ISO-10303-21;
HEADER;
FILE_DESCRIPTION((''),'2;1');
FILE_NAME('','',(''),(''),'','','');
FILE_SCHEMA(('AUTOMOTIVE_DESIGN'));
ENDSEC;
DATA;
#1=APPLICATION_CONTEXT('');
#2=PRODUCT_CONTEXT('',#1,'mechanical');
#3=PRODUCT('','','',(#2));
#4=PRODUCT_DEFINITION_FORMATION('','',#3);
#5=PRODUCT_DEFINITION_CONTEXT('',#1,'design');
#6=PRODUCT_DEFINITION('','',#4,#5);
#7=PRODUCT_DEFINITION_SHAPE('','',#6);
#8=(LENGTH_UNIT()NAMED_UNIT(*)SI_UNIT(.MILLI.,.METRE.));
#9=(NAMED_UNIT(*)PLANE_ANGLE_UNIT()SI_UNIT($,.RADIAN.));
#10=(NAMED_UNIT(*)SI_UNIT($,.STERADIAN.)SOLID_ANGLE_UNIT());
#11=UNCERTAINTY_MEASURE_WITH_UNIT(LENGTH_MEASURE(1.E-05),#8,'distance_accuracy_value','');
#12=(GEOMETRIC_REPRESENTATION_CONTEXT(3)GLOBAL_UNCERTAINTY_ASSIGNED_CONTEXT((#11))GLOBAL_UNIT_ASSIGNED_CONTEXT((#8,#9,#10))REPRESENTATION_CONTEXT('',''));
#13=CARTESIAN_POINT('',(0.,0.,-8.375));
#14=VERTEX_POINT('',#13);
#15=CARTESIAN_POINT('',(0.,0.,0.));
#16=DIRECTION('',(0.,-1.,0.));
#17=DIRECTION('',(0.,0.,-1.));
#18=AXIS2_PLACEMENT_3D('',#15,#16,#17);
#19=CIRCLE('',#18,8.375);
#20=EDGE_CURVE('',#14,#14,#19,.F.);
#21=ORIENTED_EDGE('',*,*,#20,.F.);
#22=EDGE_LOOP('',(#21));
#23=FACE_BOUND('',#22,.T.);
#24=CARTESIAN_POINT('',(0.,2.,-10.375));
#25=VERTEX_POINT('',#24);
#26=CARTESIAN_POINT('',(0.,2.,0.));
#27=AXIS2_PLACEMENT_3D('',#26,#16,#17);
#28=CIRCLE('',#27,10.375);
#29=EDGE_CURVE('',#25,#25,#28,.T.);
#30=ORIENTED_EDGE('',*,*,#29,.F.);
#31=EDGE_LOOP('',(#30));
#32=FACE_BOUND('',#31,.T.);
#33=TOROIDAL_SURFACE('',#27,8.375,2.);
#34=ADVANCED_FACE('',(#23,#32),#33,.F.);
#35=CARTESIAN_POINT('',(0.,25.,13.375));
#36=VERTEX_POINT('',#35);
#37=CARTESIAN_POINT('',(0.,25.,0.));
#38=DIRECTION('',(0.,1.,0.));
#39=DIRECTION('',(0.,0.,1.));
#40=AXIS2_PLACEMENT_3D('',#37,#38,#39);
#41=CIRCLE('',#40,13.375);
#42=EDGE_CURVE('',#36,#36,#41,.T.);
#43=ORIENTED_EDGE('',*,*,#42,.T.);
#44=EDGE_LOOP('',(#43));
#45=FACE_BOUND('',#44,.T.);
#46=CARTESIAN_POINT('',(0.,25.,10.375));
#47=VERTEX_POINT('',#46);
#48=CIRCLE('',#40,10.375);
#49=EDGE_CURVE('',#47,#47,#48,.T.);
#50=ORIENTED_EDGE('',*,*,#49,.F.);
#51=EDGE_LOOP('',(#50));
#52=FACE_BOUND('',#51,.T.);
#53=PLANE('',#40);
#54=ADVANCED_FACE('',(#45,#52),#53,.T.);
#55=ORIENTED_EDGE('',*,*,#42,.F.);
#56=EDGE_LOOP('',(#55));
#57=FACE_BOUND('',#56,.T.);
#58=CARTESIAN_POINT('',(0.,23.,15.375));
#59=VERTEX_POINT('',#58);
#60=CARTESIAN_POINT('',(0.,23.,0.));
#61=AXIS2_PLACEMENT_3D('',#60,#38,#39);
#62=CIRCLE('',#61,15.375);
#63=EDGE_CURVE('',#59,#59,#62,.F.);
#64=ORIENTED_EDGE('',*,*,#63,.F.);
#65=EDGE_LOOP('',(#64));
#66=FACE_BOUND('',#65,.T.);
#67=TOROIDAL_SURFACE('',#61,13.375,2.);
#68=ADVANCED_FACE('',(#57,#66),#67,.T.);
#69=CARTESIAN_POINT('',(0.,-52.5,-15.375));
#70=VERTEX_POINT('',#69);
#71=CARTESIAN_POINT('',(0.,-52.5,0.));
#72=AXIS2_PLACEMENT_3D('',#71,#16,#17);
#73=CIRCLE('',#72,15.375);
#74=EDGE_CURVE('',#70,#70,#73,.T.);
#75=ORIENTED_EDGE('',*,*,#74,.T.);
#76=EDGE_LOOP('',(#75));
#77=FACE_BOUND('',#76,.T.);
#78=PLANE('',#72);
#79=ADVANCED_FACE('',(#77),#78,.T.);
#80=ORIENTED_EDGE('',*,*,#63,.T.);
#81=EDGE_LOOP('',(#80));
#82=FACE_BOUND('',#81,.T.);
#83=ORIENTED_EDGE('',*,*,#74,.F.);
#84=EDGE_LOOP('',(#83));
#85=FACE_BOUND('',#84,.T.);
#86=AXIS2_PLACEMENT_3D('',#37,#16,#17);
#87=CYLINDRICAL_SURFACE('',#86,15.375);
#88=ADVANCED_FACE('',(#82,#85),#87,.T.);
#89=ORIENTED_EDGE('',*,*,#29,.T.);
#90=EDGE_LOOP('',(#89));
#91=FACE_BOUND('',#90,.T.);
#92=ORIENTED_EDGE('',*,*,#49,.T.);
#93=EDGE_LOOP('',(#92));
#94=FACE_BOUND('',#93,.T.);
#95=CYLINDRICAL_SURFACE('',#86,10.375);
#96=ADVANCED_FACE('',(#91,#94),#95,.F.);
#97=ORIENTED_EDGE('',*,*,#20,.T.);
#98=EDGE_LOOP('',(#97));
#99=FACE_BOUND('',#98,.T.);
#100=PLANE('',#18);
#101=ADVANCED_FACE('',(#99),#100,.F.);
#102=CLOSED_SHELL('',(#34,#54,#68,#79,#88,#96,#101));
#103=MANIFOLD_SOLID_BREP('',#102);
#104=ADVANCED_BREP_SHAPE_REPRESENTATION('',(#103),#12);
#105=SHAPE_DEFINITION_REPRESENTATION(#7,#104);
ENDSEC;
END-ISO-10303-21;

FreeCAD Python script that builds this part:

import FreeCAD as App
import Part
import Sketcher


def edges_at(feature, points):
    """Names of the edges that pass closest to the given points."""
    edges = feature.Shape.Edges
    near = lambda p: min(range(len(edges)), key=lambda i: edges[i].distToShape(Part.Vertex(*p))[0])
    return sorted({f"Edge{near(p) + 1}" for p in points})

doc = App.newDocument("Part")
body = doc.addObject("PartDesign::Body", "Body")

# Sketch on XZ plane
sketch1 = body.newObject("Sketcher::SketchObject", "Sketch")
sketch1.AttachmentSupport = (doc.getObject("XZ_Plane"), [""])
sketch1.MapMode = "FlatFace"
sketch1.addGeometry(Part.Circle(App.Vector(0, 0, 0), App.Vector(0, 0, 1), 15), False)
sketch1.addGeometry(Part.Circle(App.Vector(0, 0, 0), App.Vector(0, 0, 1), 10), False)
sketch1.addConstraint(Sketcher.Constraint("Coincident", 0, 3, -1, 1))
sketch1.addConstraint(Sketcher.Constraint("Coincident", 1, 3, -1, 1))
sketch1.addConstraint(Sketcher.Constraint("Diameter", 0, 30.75))
sketch1.addConstraint(Sketcher.Constraint("Diameter", 1, 20.75))
pad1 = body.newObject("PartDesign::Pad", "Pad")
pad1.Profile = sketch1
pad1.Length = 25
pad1.Reversed = True

# Sketch on XZ plane
sketch2 = body.newObject("Sketcher::SketchObject", "Sketch001")
sketch2.AttachmentSupport = (doc.getObject("XZ_Plane"), [""])
sketch2.MapMode = "FlatFace"
sketch2.AttachmentOffset = App.Placement(App.Vector(0, 0, 52.5), App.Rotation())
sketch2.addGeometry(Part.Circle(App.Vector(0, 0, 0), App.Vector(0, 0, 1), 15), False)
sketch2.addConstraint(Sketcher.Constraint("Coincident", 0, 3, -1, 1))
sketch2.addConstraint(Sketcher.Constraint("Diameter", 0, 30.75))
pad2 = body.newObject("PartDesign::Pad", "Pad001")
pad2.Profile = sketch2
pad2.Length = 52.5
pad2.Reversed = True
doc.recompute()

fillet = body.newObject("PartDesign::Fillet", "Fillet")
fillet.Base = (pad2, edges_at(pad2, [(0, 25, -15.375), (0, 0, -10.375)]))
fillet.Radius = 2

doc.recompute()
